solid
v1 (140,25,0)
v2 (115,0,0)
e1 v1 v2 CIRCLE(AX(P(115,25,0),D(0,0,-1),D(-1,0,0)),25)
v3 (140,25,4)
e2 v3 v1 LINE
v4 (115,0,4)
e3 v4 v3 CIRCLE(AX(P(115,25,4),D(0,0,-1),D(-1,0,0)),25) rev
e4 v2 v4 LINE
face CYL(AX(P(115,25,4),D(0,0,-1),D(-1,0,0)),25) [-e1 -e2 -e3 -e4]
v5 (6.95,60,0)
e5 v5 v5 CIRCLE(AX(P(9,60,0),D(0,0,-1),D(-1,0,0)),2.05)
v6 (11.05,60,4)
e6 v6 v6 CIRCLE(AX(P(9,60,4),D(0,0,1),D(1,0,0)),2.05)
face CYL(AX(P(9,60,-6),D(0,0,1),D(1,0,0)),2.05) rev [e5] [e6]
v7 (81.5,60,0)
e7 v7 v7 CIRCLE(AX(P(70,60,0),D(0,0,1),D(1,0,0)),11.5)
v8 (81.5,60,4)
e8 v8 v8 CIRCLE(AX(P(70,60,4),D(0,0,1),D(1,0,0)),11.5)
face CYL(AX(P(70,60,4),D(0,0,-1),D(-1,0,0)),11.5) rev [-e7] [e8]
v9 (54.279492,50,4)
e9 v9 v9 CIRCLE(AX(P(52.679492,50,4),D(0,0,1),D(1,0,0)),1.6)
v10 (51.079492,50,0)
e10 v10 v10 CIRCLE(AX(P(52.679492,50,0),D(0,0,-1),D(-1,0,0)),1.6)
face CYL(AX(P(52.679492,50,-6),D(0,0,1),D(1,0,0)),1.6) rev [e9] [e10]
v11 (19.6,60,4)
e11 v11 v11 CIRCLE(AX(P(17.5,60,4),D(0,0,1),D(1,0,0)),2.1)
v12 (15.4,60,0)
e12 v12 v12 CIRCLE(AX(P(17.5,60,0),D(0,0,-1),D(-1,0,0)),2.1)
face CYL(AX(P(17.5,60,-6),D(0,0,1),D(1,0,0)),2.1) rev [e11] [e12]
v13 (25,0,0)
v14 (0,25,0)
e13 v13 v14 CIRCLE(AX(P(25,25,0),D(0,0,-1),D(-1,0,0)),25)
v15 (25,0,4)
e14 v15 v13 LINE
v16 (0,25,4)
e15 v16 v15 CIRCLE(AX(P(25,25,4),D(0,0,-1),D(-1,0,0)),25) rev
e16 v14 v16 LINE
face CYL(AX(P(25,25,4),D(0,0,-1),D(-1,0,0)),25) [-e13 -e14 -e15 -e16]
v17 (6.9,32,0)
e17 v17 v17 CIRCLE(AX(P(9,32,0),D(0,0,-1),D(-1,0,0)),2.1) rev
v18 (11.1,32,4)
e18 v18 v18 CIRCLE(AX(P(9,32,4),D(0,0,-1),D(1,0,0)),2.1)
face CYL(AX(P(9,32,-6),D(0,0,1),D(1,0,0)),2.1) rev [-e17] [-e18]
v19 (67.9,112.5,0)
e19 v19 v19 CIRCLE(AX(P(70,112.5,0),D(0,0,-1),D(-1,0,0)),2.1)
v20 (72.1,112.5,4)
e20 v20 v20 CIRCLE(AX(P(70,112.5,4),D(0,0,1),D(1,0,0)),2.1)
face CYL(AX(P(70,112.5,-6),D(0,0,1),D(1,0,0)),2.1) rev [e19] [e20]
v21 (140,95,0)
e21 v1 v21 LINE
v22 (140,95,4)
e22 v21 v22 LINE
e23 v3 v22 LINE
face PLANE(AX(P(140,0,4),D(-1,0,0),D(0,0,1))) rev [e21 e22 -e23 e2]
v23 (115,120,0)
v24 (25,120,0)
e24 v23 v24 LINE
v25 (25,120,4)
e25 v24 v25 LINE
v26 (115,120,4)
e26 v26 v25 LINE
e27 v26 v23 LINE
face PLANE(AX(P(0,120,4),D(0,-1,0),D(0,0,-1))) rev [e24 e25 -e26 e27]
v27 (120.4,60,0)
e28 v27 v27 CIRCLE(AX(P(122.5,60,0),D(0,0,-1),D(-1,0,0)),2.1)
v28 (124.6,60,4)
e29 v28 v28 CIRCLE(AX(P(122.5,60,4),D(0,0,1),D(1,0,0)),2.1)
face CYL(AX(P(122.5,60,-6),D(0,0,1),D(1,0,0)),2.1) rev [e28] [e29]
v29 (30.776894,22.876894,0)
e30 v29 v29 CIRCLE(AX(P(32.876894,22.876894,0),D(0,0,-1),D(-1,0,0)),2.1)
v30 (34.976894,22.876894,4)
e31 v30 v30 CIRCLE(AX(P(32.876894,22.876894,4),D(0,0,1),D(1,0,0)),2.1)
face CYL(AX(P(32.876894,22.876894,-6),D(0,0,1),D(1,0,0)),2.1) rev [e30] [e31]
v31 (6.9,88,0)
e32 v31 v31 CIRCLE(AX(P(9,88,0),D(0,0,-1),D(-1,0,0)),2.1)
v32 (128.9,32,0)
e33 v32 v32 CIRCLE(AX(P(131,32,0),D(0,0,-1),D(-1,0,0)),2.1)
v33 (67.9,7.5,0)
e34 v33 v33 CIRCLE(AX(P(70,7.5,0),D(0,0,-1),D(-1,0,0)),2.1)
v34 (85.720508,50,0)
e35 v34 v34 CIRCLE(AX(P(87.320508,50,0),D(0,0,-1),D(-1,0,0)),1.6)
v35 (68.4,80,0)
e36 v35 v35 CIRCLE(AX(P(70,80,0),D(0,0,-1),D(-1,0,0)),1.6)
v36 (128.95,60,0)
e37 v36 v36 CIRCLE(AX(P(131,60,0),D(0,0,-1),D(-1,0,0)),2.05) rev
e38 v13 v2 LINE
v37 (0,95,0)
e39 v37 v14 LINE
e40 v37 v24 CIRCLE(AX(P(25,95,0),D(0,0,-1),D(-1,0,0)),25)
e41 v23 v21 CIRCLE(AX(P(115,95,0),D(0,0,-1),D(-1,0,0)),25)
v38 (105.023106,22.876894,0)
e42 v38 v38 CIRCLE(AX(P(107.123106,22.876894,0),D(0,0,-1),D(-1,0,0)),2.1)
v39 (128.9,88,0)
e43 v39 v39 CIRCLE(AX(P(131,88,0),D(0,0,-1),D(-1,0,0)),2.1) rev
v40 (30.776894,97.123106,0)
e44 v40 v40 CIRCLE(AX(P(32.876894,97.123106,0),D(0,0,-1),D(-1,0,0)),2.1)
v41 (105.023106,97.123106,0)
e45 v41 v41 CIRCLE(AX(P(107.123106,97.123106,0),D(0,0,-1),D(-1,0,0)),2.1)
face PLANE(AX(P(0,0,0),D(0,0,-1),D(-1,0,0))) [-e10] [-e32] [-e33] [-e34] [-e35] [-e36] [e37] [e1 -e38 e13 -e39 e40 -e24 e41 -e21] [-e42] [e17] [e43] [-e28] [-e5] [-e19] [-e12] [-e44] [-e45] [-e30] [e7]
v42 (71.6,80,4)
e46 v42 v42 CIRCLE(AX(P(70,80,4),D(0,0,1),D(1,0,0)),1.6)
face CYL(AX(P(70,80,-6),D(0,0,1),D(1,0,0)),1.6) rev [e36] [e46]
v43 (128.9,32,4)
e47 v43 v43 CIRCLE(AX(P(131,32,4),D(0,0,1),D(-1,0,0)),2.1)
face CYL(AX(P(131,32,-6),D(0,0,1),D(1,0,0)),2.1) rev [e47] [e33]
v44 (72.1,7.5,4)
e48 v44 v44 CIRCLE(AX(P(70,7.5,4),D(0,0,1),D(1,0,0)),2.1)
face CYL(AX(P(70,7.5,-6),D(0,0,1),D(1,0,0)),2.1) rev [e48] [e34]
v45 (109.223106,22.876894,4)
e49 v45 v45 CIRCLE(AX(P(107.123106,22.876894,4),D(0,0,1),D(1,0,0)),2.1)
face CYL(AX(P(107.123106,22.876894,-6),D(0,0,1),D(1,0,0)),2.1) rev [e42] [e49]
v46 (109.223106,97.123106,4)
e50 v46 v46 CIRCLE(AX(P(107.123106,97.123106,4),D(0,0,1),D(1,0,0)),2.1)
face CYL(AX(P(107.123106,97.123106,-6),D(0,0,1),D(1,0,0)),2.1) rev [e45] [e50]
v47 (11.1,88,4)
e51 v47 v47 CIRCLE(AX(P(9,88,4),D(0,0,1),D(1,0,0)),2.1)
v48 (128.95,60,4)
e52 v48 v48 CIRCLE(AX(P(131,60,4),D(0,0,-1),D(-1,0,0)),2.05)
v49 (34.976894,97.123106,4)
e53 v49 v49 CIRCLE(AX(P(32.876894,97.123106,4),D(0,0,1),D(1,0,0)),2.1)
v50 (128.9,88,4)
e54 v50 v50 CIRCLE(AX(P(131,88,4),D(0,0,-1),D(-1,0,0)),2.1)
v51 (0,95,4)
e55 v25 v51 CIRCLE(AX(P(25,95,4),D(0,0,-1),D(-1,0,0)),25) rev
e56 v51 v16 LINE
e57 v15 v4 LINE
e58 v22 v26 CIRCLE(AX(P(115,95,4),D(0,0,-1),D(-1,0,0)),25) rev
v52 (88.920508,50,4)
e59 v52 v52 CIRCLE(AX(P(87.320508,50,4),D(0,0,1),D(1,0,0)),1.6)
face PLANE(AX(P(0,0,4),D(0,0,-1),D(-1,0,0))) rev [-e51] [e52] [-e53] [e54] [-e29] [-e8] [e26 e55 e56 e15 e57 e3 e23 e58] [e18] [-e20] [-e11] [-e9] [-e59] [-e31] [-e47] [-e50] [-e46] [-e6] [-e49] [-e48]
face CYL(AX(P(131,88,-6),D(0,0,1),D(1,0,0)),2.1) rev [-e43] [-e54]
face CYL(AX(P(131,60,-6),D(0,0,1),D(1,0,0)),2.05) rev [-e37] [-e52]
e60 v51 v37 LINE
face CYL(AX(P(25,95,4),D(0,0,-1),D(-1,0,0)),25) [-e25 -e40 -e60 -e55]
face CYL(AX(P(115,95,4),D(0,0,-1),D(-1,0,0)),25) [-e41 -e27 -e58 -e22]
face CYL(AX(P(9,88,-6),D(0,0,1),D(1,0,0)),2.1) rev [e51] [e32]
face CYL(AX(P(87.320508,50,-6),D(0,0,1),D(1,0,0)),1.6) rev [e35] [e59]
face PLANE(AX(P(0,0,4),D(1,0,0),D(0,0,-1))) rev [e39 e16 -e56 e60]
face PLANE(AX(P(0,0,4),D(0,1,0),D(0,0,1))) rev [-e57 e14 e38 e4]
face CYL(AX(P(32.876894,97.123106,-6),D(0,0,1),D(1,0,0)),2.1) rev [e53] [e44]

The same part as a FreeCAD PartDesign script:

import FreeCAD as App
import Part
import Sketcher

V = App.Vector


def edges_at(feature, points):
    """Names of the edges that pass closest to the given points."""
    edges = feature.Shape.Edges
    near = lambda p: min(range(len(edges)), key=lambda i: edges[i].distToShape(Part.Vertex(*p))[0])
    return sorted({f"Edge{near(p) + 1}" for p in points})


def add_polygon(sketch, points):
    """Adds a closed chain of lines whose ends are joined by coincident constraints."""
    first, n = sketch.GeometryCount, len(points)
    for a, b in zip(points, points[1:] + points[:1]):
        sketch.addGeometry(Part.LineSegment(App.Vector(*a, 0), App.Vector(*b, 0)), False)
    for i in range(n):
        sketch.addConstraint(Sketcher.Constraint("Coincident", first + i, 2, first + (i + 1) % n, 1))

doc = App.newDocument("Part")
body = doc.addObject("PartDesign::Body", "Body")

sketch1 = body.newObject("Sketcher::SketchObject", "Sketch")
sketch1.AttachmentSupport = (doc.getObject("XY_Plane"), [""])
sketch1.MapMode = "FlatFace"
add_polygon(sketch1, [(0, 120), (0, 0), (140, 0), (140, 120)])
sketch1.addGeometry(Part.Circle(V(70, 60, 0), V(0, 0, 1), 12), False)
sketch1.addConstraint([
    Sketcher.Constraint("Vertical", 0),
    Sketcher.Constraint("Horizontal", 1),
    Sketcher.Constraint("Vertical", 2),
    Sketcher.Constraint("Horizontal", 3),
    Sketcher.Constraint("Coincident", 0, 2, -1, 1),
    Sketcher.Constraint("Diameter", 4, 23.0),
    Sketcher.Constraint("DistanceX", 1, 1, 1, 2, 140.0),
    Sketcher.Constraint("DistanceY", 0, 2, 0, 1, 120.0),
    Sketcher.Constraint("DistanceX", -1, 1, 4, 3, 70.0),
    Sketcher.Constraint("DistanceY", -1, 1, 4, 3, 60.0),
])
pad1 = body.newObject("PartDesign::Pad", "Pad")
pad1.Profile = sketch1
pad1.Length = 4

sketch2 = body.newObject("Sketcher::SketchObject", "Sketch001")
sketch2.AttachmentSupport = (doc.getObject("XY_Plane"), [""])
sketch2.MapMode = "FlatFace"
sketch2.AttachmentOffset = App.Placement(V(0, 0, 4), App.Rotation())
sketch2.addGeometry([
    Part.Circle(V(9, 60, 0), V(0, 0, 1), 2),
    Part.Circle(V(9, 88, 0), V(0, 0, 1), 2.1),
], False)
sketch2.addConstraint([
    Sketcher.Constraint("Vertical", 0, 3, 1, 3),
    Sketcher.Constraint("Diameter", 0, 4.1),
    Sketcher.Constraint("Diameter", 1, 4.2),
    Sketcher.Constraint("DistanceX", -1, 1, 0, 3, 9.0),
    Sketcher.Constraint("DistanceY", -1, 1, 0, 3, 60.0),
    Sketcher.Constraint("DistanceY", -1, 1, 1, 3, 88.0),
])
pocket1 = body.newObject("PartDesign::Pocket", "Pocket")
pocket1.Profile = sketch2
pocket1.Length = 10
doc.recompute()

datumplane = body.newObject("PartDesign::Plane", "DatumPlane")
datumplane.AttachmentSupport = (doc.getObject("XZ_Plane"), [""])
datumplane.MapMode = "FlatFace"
datumplane.AttachmentOffset = App.Placement(V(0, 0, -60), App.Rotation())
mirrored = body.newObject("PartDesign::Mirrored", "Mirrored")
mirrored.Originals = [pocket1]
mirrored.MirrorPlane = (datumplane, [""])
body.Tip = mirrored
doc.recompute()

datumplane2 = body.newObject("PartDesign::Plane", "DatumPlane001")
datumplane2.AttachmentSupport = (doc.getObject("YZ_Plane"), [""])
datumplane2.MapMode = "FlatFace"
datumplane2.AttachmentOffset = App.Placement(V(0, 0, 70), App.Rotation())
mirrored2 = body.newObject("PartDesign::Mirrored", "Mirrored001")
mirrored2.Originals = [pocket1]
mirrored2.MirrorPlane = (datumplane2, [""])
body.Tip = mirrored2

sketch3 = body.newObject("Sketcher::SketchObject", "Sketch002")
sketch3.AttachmentSupport = (doc.getObject("XY_Plane"), [""])
sketch3.MapMode = "FlatFace"
sketch3.AttachmentOffset = App.Placement(V(0, 0, 4), App.Rotation())
sketch3.addGeometry([
    Part.Circle(V(131, 60, 0), V(0, 0, 1), 2),
    Part.Circle(V(131, 32, 0), V(0, 0, 1), 2.1),
], False)
sketch3.addConstraint([
    Sketcher.Constraint("Vertical", 0, 3, 1, 3),
    Sketcher.Constraint("Diameter", 0, 4.1),
    Sketcher.Constraint("Diameter", 1, 4.2),
    Sketcher.Constraint("DistanceX", -1, 1, 0, 3, 131.0),
    Sketcher.Constraint("DistanceY", -1, 1, 0, 3, 60.0),
    Sketcher.Constraint("DistanceY", -1, 1, 1, 3, 32.0),
])
pocket2 = body.newObject("PartDesign::Pocket", "Pocket001")
pocket2.Profile = sketch3
pocket2.Length = 10
doc.recompute()

fillet = body.newObject("PartDesign::Fillet", "Fillet")
fillet.Base = (pocket2, edges_at(pocket2, [
    (0, 120, 2),
    (140, 120, 2),
    (140, 0, 2),
    (0, 0, 2),
]))
fillet.Radius = 25

sketch4 = body.newObject("Sketcher::SketchObject", "Sketch003")
sketch4.AttachmentSupport = (doc.getObject("XY_Plane"), [""])
sketch4.MapMode = "FlatFace"
sketch4.AttachmentOffset = App.Placement(V(0, 0, 4), App.Rotation())
sketch4.addGeometry([
    Part.Circle(V(70, 112.5, 0), V(0, 0, 1), 2.1),
    Part.Circle(V(107.1, 97.1, 0), V(0, 0, 1), 2.1),
    Part.Circle(V(122.5, 60, 0), V(0, 0, 1), 2.1),
    Part.Circle(V(107.1, 22.9, 0), V(0, 0, 1), 2.1),
    Part.Circle(V(70, 7.5, 0), V(0, 0, 1), 2.1),
    Part.Circle(V(32.9, 22.9, 0), V(0, 0, 1), 2.1),
    Part.Circle(V(17.5, 60, 0), V(0, 0, 1), 2.1),
    Part.Circle(V(32.9, 97.1, 0), V(0, 0, 1), 2.1),
], False)
sketch4.addConstraint([
    Sketcher.Constraint("Equal", 0, 1),
    Sketcher.Constraint("Equal", 1, 2),
    Sketcher.Constraint("Equal", 2, 3),
    Sketcher.Constraint("Equal", 3, 4),
    Sketcher.Constraint("Equal", 4, 5),
    Sketcher.Constraint("Equal", 5, 6),
    Sketcher.Constraint("Equal", 6, 7),
    Sketcher.Constraint("Horizontal", 3, 3, 5, 3),
    Sketcher.Constraint("Horizontal", 2, 3, 6, 3),
    Sketcher.Constraint("Horizontal", 1, 3, 7, 3),
    Sketcher.Constraint("Vertical", 1, 3, 3, 3),
    Sketcher.Constraint("Vertical", 0, 3, 4, 3),
    Sketcher.Constraint("Vertical", 5, 3, 7, 3),
    Sketcher.Constraint("Diameter", 0, 4.2),
    Sketcher.Constraint("DistanceX", -1, 1, 0, 3, 70.0),
    Sketcher.Constraint("DistanceY", -1, 1, 2, 3, 60.0),
    Sketcher.Constraint("DistanceY", 4, 3, 0, 3, 105.0),
    Sketcher.Constraint("DistanceY", -1, 1, 0, 3, 112.5),
    Sketcher.Constraint("DistanceX", -1, 1, 2, 3, 122.5),
    Sketcher.Constraint("DistanceX", -1, 1, 6, 3, 17.5),
    Sketcher.Constraint("DistanceX", -1, 1, 1, 3, 107.123106),
    Sketcher.Constraint("DistanceY", -1, 1, 1, 3, 97.123106),
    Sketcher.Constraint("DistanceY", -1, 1, 3, 3, 22.876894),
    Sketcher.Constraint("DistanceX", -1, 1, 5, 3, 32.876894),
])
pocket3 = body.newObject("PartDesign::Pocket", "Pocket002")
pocket3.Profile = sketch4
pocket3.Length = 10

sketch5 = body.newObject("Sketcher::SketchObject", "Sketch004")
sketch5.AttachmentSupport = (doc.getObject("XY_Plane"), [""])
sketch5.MapMode = "FlatFace"
sketch5.AttachmentOffset = App.Placement(V(0, 0, 4), App.Rotation())
sketch5.addGeometry([
    Part.Circle(V(70, 80, 0), V(0, 0, 1), 1.6),
    Part.Circle(V(87.3, 50, 0), V(0, 0, 1), 1.6),
    Part.Circle(V(52.7, 50, 0), V(0, 0, 1), 1.6),
], False)
sketch5.addConstraint([
    Sketcher.Constraint("Equal", 0, 1),
    Sketcher.Constraint("Equal", 1, 2),
    Sketcher.Constraint("Horizontal", 1, 3, 2, 3),
    Sketcher.Constraint("Diameter", 0, 3.2),
    Sketcher.Constraint("DistanceX", -1, 1, 0, 3, 70.0),
    Sketcher.Constraint("DistanceY", -1, 1, 0, 3, 80.0),
    Sketcher.Constraint("DistanceY", -1, 1, 1, 3, 50.0),
    Sketcher.Constraint("DistanceX", -1, 1, 1, 3, 87.320508),
    Sketcher.Constraint("DistanceX", -1, 1, 2, 3, 52.679492),
])
pocket4 = body.newObject("PartDesign::Pocket", "Pocket003")
pocket4.Profile = sketch5
pocket4.Length = 10

doc.recompute()
